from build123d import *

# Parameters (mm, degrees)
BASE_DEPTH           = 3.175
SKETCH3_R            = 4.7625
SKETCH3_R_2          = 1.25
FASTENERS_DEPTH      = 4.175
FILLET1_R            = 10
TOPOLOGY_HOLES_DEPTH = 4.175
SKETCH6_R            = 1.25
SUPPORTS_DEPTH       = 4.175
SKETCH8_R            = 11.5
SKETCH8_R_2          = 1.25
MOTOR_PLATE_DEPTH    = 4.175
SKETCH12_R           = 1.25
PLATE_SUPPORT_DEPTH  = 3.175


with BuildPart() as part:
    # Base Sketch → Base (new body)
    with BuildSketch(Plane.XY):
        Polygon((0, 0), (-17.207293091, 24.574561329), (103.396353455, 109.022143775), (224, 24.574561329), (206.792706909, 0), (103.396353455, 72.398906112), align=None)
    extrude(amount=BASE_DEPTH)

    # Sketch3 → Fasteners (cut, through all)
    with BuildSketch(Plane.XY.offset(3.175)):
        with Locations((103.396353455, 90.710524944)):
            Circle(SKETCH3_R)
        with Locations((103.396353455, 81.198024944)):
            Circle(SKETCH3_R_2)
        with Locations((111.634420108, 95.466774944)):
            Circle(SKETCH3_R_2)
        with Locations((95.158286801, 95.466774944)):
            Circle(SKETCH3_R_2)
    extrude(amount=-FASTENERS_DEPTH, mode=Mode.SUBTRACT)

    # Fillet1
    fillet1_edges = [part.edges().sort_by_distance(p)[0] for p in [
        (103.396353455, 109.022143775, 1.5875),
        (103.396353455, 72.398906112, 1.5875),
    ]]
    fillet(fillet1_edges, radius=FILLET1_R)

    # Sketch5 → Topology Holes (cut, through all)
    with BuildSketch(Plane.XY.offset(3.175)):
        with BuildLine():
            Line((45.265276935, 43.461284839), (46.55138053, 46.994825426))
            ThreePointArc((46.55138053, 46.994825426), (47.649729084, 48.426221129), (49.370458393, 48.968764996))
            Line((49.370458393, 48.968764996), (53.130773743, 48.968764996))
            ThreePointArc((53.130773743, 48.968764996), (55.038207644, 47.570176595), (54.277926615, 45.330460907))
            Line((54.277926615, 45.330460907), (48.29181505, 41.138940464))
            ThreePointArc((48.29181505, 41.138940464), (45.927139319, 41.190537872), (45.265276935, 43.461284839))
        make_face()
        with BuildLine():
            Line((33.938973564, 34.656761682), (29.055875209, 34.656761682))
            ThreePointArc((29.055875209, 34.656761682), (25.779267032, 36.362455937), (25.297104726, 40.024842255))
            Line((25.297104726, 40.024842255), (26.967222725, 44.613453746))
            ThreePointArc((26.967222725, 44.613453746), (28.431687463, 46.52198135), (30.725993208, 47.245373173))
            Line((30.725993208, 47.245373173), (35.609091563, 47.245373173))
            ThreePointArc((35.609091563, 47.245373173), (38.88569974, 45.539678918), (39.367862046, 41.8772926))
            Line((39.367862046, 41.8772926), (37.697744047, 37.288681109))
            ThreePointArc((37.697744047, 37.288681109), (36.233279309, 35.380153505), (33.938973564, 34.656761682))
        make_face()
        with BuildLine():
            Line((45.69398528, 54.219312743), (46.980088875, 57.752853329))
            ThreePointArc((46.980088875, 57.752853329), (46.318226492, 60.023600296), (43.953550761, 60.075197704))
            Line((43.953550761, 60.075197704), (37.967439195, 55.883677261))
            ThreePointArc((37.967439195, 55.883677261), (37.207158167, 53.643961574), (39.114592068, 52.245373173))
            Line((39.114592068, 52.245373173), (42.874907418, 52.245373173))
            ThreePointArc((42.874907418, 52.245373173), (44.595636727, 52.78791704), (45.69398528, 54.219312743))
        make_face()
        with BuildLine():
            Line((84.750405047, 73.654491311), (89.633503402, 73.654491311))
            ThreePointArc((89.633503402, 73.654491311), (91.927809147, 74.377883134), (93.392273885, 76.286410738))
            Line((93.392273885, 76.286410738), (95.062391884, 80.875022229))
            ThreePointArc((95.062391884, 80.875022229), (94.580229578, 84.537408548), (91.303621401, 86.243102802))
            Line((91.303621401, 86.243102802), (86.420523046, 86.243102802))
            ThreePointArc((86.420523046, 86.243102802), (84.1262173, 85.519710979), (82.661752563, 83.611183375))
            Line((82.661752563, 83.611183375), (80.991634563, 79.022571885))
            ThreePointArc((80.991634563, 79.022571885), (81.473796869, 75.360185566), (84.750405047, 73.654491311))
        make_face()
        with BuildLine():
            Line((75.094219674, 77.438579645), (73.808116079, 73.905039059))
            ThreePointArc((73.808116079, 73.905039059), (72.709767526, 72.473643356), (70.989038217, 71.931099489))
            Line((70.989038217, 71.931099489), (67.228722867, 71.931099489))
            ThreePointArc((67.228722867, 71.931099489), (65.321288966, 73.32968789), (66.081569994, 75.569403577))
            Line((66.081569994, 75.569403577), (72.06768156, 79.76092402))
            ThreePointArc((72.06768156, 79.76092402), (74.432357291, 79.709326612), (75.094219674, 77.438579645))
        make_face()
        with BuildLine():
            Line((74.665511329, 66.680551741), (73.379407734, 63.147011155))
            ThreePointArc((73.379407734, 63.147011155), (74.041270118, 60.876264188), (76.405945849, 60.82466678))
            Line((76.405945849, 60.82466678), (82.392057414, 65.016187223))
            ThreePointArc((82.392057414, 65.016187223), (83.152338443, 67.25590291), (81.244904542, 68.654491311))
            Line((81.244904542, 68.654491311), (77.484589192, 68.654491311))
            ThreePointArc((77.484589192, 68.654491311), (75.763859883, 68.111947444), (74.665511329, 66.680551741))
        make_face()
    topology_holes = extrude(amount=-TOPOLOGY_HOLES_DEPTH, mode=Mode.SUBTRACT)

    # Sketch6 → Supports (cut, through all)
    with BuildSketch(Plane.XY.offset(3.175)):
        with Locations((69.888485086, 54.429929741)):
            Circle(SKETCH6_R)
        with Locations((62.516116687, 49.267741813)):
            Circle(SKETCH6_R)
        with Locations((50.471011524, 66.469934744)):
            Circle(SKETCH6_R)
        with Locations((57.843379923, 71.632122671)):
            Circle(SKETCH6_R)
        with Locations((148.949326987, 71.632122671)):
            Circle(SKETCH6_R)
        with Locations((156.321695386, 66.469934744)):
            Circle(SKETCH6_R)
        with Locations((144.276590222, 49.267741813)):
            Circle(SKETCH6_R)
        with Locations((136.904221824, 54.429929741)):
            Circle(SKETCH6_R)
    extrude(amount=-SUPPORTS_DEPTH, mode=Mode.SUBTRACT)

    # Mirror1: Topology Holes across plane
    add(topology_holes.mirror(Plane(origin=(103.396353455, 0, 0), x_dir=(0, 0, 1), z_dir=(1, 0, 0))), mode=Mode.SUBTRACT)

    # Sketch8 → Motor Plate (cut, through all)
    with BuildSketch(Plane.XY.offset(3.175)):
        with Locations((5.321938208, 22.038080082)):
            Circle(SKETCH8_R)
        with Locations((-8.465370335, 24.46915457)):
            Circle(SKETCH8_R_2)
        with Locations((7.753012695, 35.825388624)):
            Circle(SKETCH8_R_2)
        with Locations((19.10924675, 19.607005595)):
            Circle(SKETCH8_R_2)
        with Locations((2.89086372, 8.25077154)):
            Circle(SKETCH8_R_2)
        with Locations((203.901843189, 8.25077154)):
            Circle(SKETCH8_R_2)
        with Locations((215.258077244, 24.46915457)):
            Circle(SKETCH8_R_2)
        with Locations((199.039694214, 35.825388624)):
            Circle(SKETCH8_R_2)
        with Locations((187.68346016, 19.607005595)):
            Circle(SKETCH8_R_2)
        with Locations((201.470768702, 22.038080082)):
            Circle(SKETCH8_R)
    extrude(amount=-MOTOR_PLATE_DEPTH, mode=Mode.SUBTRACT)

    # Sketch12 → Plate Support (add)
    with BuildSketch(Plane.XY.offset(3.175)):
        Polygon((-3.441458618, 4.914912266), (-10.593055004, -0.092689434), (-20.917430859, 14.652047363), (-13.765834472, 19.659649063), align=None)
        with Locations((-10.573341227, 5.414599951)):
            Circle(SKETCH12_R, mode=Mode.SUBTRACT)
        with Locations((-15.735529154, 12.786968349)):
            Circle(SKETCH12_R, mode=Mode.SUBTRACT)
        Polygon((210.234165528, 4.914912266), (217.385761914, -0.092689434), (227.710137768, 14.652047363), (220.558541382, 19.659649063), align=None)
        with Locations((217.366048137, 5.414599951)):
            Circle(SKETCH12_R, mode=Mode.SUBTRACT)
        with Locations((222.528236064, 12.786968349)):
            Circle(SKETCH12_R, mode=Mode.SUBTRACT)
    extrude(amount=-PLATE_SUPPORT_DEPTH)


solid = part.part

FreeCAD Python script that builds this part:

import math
import FreeCAD as App
import Part
import Sketcher
from FreeCAD import Vector
Q = App.Units.Quantity


def edges_at(feature, points):
    """Names of the edges that pass closest to the given points."""
    edges = feature.Shape.Edges
    near = lambda p: min(range(len(edges)), key=lambda i: edges[i].distToShape(Part.Vertex(*p))[0])
    return sorted({f"Edge{near(p) + 1}" for p in points})

doc = App.newDocument("Part")
body = doc.addObject("PartDesign::Body", "Body")

# Sketch on XY plane
sketch1 = body.newObject("Sketcher::SketchObject", "Sketch")
sketch1.AttachmentSupport = (doc.getObject("XY_Plane"), [""])
sketch1.MapMode = "FlatFace"
sketch1.addGeometry(Part.LineSegment(Vector(-17, 25, 0), Vector(0, 0, 0)), False)
sketch1.addGeometry(Part.LineSegment(Vector(0, 0, 0), Vector(103, 72, 0)), False)
sketch1.addGeometry(Part.LineSegment(Vector(103, 72, 0), Vector(207, 0, 0)), False)
sketch1.addGeometry(Part.LineSegment(Vector(207, 0, 0), Vector(224, 25, 0)), False)
sketch1.addGeometry(Part.LineSegment(Vector(224, 25, 0), Vector(103, 109, 0)), False)
sketch1.addGeometry(Part.LineSegment(Vector(103, 109, 0), Vector(-17, 25, 0)), False)
sketch1.addConstraint(Sketcher.Constraint("Coincident", 0, 2, 1, 1))
sketch1.addConstraint(Sketcher.Constraint("Coincident", 1, 2, 2, 1))
sketch1.addConstraint(Sketcher.Constraint("Coincident", 2, 2, 3, 1))
sketch1.addConstraint(Sketcher.Constraint("Coincident", 3, 2, 4, 1))
sketch1.addConstraint(Sketcher.Constraint("Coincident", 4, 2, 5, 1))
sketch1.addConstraint(Sketcher.Constraint("Coincident", 5, 2, 0, 1))
sketch1.addConstraint(Sketcher.Constraint("Coincident", 0, 2, -1, 1))
sketch1.addConstraint(Sketcher.Constraint("PointOnObject", 2, 2, -1))
sketch1.addConstraint(Sketcher.Constraint("Perpendicular", 0, 1))
sketch1.addConstraint(Sketcher.Constraint("Perpendicular", 2, 3))
sketch1.addConstraint(Sketcher.Constraint("Perpendicular", 3, 4))
sketch1.addConstraint(Sketcher.Constraint("Parallel", 1, 5))
sketch1.addConstraint(Sketcher.Constraint("Horizontal", 3, 2, 5, 2))
sketch1.addConstraint(Sketcher.Constraint("Vertical", 1, 2, 4, 2))
sketch1.addConstraint(Sketcher.Constraint("Angle", 0, Q("-55 deg")))
sketch1.addConstraint(Sketcher.Constraint("Distance", 0, 30.0))
sketch1.addConstraint(Sketcher.Constraint("DistanceX", -1, 1, 3, 2, 224.0))
pad1 = body.newObject("PartDesign::Pad", "Pad")
pad1.Profile = sketch1
pad1.Length = 3.175

# Sketch on XY plane
sketch2 = body.newObject("Sketcher::SketchObject", "Sketch001")
sketch2.AttachmentSupport = (doc.getObject("XY_Plane"), [""])
sketch2.MapMode = "FlatFace"
sketch2.AttachmentOffset = App.Placement(Vector(0, 0, 3.175), App.Rotation())
sketch2.addGeometry(Part.Circle(Vector(103.4, 90.7, 0), Vector(0, 0, 1), 4.8), False)
sketch2.addGeometry(Part.Circle(Vector(103.4, 81.2, 0), Vector(0, 0, 1), 1.2), False)
sketch2.addGeometry(Part.Circle(Vector(111.6, 95.5, 0), Vector(0, 0, 1), 1.2), False)
sketch2.addGeometry(Part.Circle(Vector(95.2, 95.5, 0), Vector(0, 0, 1), 1.2), False)
sketch2.addConstraint(Sketcher.Constraint("Equal", 1, 2))
sketch2.addConstraint(Sketcher.Constraint("Equal", 2, 3))
sketch2.addConstraint(Sketcher.Constraint("Horizontal", 2, 3, 3, 3))
sketch2.addConstraint(Sketcher.Constraint("Vertical", 0, 3, 1, 3))
sketch2.addConstraint(Sketcher.Constraint("Diameter", 1, 2.5))
sketch2.addConstraint(Sketcher.Constraint("Diameter", 0, 9.525))
sketch2.addConstraint(Sketcher.Constraint("DistanceY", 1, 3, 0, 3, 9.5125))
sketch2.addConstraint(Sketcher.Constraint("DistanceX", -1, 1, 2, 3, 111.63442))
sketch2.addConstraint(Sketcher.Constraint("DistanceY", 0, 3, 2, 3, 4.75625))
sketch2.addConstraint(Sketcher.Constraint("DistanceX", -1, 1, 0, 3, 103.396353))
sketch2.addConstraint(Sketcher.Constraint("DistanceY", -1, 1, 0, 3, 90.710525))
sketch2.addConstraint(Sketcher.Constraint("DistanceX", -1, 1, 3, 3, 95.158287))
pocket1 = body.newObject("PartDesign::Pocket", "Pocket")
pocket1.Profile = sketch2
pocket1.Type = "ThroughAll"
doc.recompute()

fillet = body.newObject("PartDesign::Fillet", "Fillet")
fillet.Base = (pocket1, edges_at(pocket1, [(103.396, 109.022, 1.587), (103.396, 72.399, 1.587)]))
fillet.Radius = 10

# Sketch on XY plane
sketch3 = body.newObject("Sketcher::SketchObject", "Sketch002")
sketch3.AttachmentSupport = (doc.getObject("XY_Plane"), [""])
sketch3.MapMode = "FlatFace"
sketch3.AttachmentOffset = App.Placement(Vector(0, 0, 3.175), App.Rotation())
sketch3.addGeometry(Part.LineSegment(Vector(46.6, 47, 0), Vector(45.3, 43.5, 0)), False)
sketch3.addGeometry(Part.ArcOfCircle(Part.Circle(Vector(47.1, 42.8, 0), Vector(0, 0, 1), 2), math.radians(160), math.radians(305)), False)
sketch3.addGeometry(Part.LineSegment(Vector(48.3, 41.1, 0), Vector(54.3, 45.3, 0)), False)
sketch3.addGeometry(Part.ArcOfCircle(Part.Circle(Vector(53.1, 47, 0), Vector(0, 0, 1), 2), math.radians(-55), math.radians(90)), False)
sketch3.addGeometry(Part.LineSegment(Vector(53.1, 49, 0), Vector(49.4, 49, 0)), False)
sketch3.addGeometry(Part.ArcOfCircle(Part.Circle(Vector(49.4, 46, 0), Vector(0, 0, 1), 3), math.radians(90), math.radians(160)), False)
sketch3.addGeometry(Part.LineSegment(Vector(29.1, 34.7, 0), Vector(33.9, 34.7, 0)), False)
sketch3.addGeometry(Part.ArcOfCircle(Part.Circle(Vector(33.9, 38.7, 0), Vector(0, 0, 1), 4), math.radians(-90), math.radians(-20)), False)
sketch3.addGeometry(Part.LineSegment(Vector(37.7, 37.3, 0), Vector(39.4, 41.9, 0)), False)
sketch3.addGeometry(Part.ArcOfCircle(Part.Circle(Vector(35.6, 43.2, 0), Vector(0, 0, 1), 4), math.radians(-20), math.radians(90)), False)
sketch3.addGeometry(Part.LineSegment(Vector(35.6, 47.2, 0), Vector(30.7, 47.2, 0)), False)
sketch3.addGeometry(Part.ArcOfCircle(Part.Circle(Vector(30.7, 43.2, 0), Vector(0, 0, 1), 4), math.radians(90), math.radians(160)), False)
sketch3.addGeometry(Part.LineSegment(Vector(27, 44.6, 0), Vector(25.3, 40, 0)), False)
sketch3.addGeometry(Part.ArcOfCircle(Part.Circle(Vector(29.1, 38.7, 0), Vector(0, 0, 1), 4), math.radians(160), math.radians(270)), False)
sketch3.addGeometry(Part.LineSegment(Vector(45.7, 54.2, 0), Vector(47, 57.8, 0)), False)
sketch3.addGeometry(Part.ArcOfCircle(Part.Circle(Vector(45.1, 58.4, 0), Vector(0, 0, 1), 2), math.radians(-20), math.radians(125)), False)
sketch3.addGeometry(Part.LineSegment(Vector(44, 60.1, 0), Vector(38, 55.9, 0)), False)
sketch3.addGeometry(Part.ArcOfCircle(Part.Circle(Vector(39.1, 54.2, 0), Vector(0, 0, 1), 2), math.radians(125), math.radians(270)), False)
sketch3.addGeometry(Part.LineSegment(Vector(39.1, 52.2, 0), Vector(42.9, 52.2, 0)), False)
sketch3.addGeometry(Part.ArcOfCircle(Part.Circle(Vector(42.9, 55.2, 0), Vector(0, 0, 1), 3), math.radians(-90), math.radians(-20)), False)
sketch3.addGeometry(Part.LineSegment(Vector(84.8, 73.7, 0), Vector(89.6, 73.7, 0)), False)
sketch3.addGeometry(Part.ArcOfCircle(Part.Circle(Vector(89.6, 77.7, 0), Vector(0, 0, 1), 4), math.radians(-90), math.radians(-20)), False)
sketch3.addGeometry(Part.LineSegment(Vector(93.4, 76.3, 0), Vector(95.1, 80.9, 0)), False)
sketch3.addGeometry(Part.ArcOfCircle(Part.Circle(Vector(91.3, 82.2, 0), Vector(0, 0, 1), 4), math.radians(-20), math.radians(90)), False)
sketch3.addGeometry(Part.LineSegment(Vector(91.3, 86.2, 0), Vector(86.4, 86.2, 0)), False)
sketch3.addGeometry(Part.ArcOfCircle(Part.Circle(Vector(86.4, 82.2, 0), Vector(0, 0, 1), 4), math.radians(90), math.radians(160)), False)
sketch3.addGeometry(Part.LineSegment(Vector(82.7, 83.6, 0), Vector(81, 79, 0)), False)
sketch3.addGeometry(Part.ArcOfCircle(Part.Circle(Vector(84.8, 77.7, 0), Vector(0, 0, 1), 4), math.radians(160), math.radians(270)), False)
sketch3.addGeometry(Part.LineSegment(Vector(73.8, 73.9, 0), Vector(75.1, 77.4, 0)), False)
sketch3.addGeometry(Part.ArcOfCircle(Part.Circle(Vector(73.2, 78.1, 0), Vector(0, 0, 1), 2), math.radians(-20), math.radians(125)), False)
sketch3.addGeometry(Part.LineSegment(Vector(72.1, 79.8, 0), Vector(66.1, 75.6, 0)), False)
sketch3.addGeometry(Part.ArcOfCircle(Part.Circle(Vector(67.2, 73.9, 0), Vector(0, 0, 1), 2), math.radians(125), math.radians(270)), False)
sketch3.addGeometry(Part.LineSegment(Vector(67.2, 71.9, 0), Vector(71, 71.9, 0)), False)
sketch3.addGeometry(Part.ArcOfCircle(Part.Circle(Vector(71, 74.9, 0), Vector(0, 0, 1), 3), math.radians(-90), math.radians(-20)), False)
sketch3.addGeometry(Part.LineSegment(Vector(74.7, 66.7, 0), Vector(73.4, 63.1, 0)), False)
sketch3.addGeometry(Part.ArcOfCircle(Part.Circle(Vector(75.3, 62.5, 0), Vector(0, 0, 1), 2), math.radians(160), math.radians(305)), False)
sketch3.addGeometry(Part.LineSegment(Vector(76.4, 60.8, 0), Vector(82.4, 65, 0)), False)
sketch3.addGeometry(Part.ArcOfCircle(Part.Circle(Vector(81.2, 66.7, 0), Vector(0, 0, 1), 2), math.radians(-55), math.radians(90)), False)
sketch3.addGeometry(Part.LineSegment(Vector(81.2, 68.7, 0), Vector(77.5, 68.7, 0)), False)
sketch3.addGeometry(Part.ArcOfCircle(Part.Circle(Vector(77.5, 65.7, 0), Vector(0, 0, 1), 3), math.radians(90), math.radians(160)), False)
sketch3.addConstraint(Sketcher.Constraint("Tangent", 0, 2, 1, 1))
sketch3.addConstraint(Sketcher.Constraint("Tangent", 1, 2, 2, 1))
sketch3.addConstraint(Sketcher.Constraint("Tangent", 2, 2, 3, 1))
sketch3.addConstraint(Sketcher.Constraint("Tangent", 3, 2, 4, 1))
sketch3.addConstraint(Sketcher.Constraint("Tangent", 4, 2, 5, 1))
sketch3.addConstraint(Sketcher.Constraint("Tangent", 5, 2, 0, 1))
sketch3.addConstraint(Sketcher.Constraint("Tangent", 6, 2, 7, 1))
sketch3.addConstraint(Sketcher.Constraint("Tangent", 7, 2, 8, 1))
sketch3.addConstraint(Sketcher.Constraint("Tangent", 8, 2, 9, 1))
sketch3.addConstraint(Sketcher.Constraint("Tangent", 9, 2, 10, 1))
sketch3.addConstraint(Sketcher.Constraint("Tangent", 10, 2, 11, 1))
sketch3.addConstraint(Sketcher.Constraint("Tangent", 11, 2, 12, 1))
sketch3.addConstraint(Sketcher.Constraint("Tangent", 12, 2, 13, 1))
sketch3.addConstraint(Sketcher.Constraint("Tangent", 13, 2, 6, 1))
sketch3.addConstraint(Sketcher.Constraint("Tangent", 14, 2, 15, 1))
sketch3.addConstraint(Sketcher.Constraint("Tangent", 15, 2, 16, 1))
sketch3.addConstraint(Sketcher.Constraint("Tangent", 16, 2, 17, 1))
sketch3.addConstraint(Sketcher.Constraint("Tangent", 17, 2, 18, 1))
sketch3.addConstraint(Sketcher.Constraint("Tangent", 18, 2, 19, 1))
sketch3.addConstraint(Sketcher.Constraint("Tangent", 19, 2, 14, 1))
sketch3.addConstraint(Sketcher.Constraint("Tangent", 20, 2, 21, 1))
sketch3.addConstraint(Sketcher.Constraint("Tangent", 21, 2, 22, 1))
sketch3.addConstraint(Sketcher.Constraint("Tangent", 22, 2, 23, 1))
sketch3.addConstraint(Sketcher.Constraint("Tangent", 23, 2, 24, 1))
sketch3.addConstraint(Sketcher.Constraint("Tangent", 24, 2, 25, 1))
sketch3.addConstraint(Sketcher.Constraint("Tangent", 25, 2, 26, 1))
sketch3.addConstraint(Sketcher.Constraint("Tangent", 26, 2, 27, 1))
sketch3.addConstraint(Sketcher.Constraint("Tangent", 27, 2, 20, 1))
sketch3.addConstraint(Sketcher.Constraint("Tangent", 28, 2, 29, 1))
sketch3.addConstraint(Sketcher.Constraint("Tangent", 29, 2, 30, 1))
sketch3.addConstraint(Sketcher.Constraint("Tangent", 30, 2, 31, 1))
sketch3.addConstraint(Sketcher.Constraint("Tangent", 31, 2, 32, 1))
sketch3.addConstraint(Sketcher.Constraint("Tangent", 32, 2, 33, 1))
sketch3.addConstraint(Sketcher.Constraint("Tangent", 33, 2, 28, 1))
sketch3.addConstraint(Sketcher.Constraint("Tangent", 34, 2, 35, 1))
sketch3.addConstraint(Sketcher.Constraint("Tangent", 35, 2, 36, 1))
sketch3.addConstraint(Sketcher.Constraint("Tangent", 36, 2, 37, 1))
sketch3.addConstraint(Sketcher.Constraint("Tangent", 37, 2, 38, 1))
sketch3.addConstraint(Sketcher.Constraint("Tangent", 38, 2, 39, 1))
sketch3.addConstraint(Sketcher.Constraint("Tangent", 39, 2, 34, 1))
sketch3.addConstraint(Sketcher.Constraint("Horizontal", 4))
sketch3.addConstraint(Sketcher.Constraint("Horizontal", 6))
sketch3.addConstraint(Sketcher.Constraint("Horizontal", 10))
sketch3.addConstraint(Sketcher.Constraint("Horizontal", 18))
sketch3.addConstraint(Sketcher.Constraint("Horizontal", 20))
sketch3.addConstraint(Sketcher.Constraint("Horizontal", 24))
sketch3.addConstraint(Sketcher.Constraint("Horizontal", 32))
sketch3.addConstraint(Sketcher.Constraint("Horizontal", 38))
sketch3.addConstraint(Sketcher.Constraint("Equal", 1, 3))
sketch3.addConstraint(Sketcher.Constraint("Equal", 7, 9))
sketch3.addConstraint(Sketcher.Constraint("Equal", 9, 11))
sketch3.addConstraint(Sketcher.Constraint("Equal", 11, 13))
sketch3.addConstraint(Sketcher.Constraint("Equal", 3, 15))
sketch3.addConstraint(Sketcher.Constraint("Equal", 15, 17))
sketch3.addConstraint(Sketcher.Constraint("Equal", 5, 19))
sketch3.addConstraint(Sketcher.Constraint("Equal", 13, 21))
sketch3.addConstraint(Sketcher.Constraint("Equal", 21, 23))
sketch3.addConstraint(Sketcher.Constraint("Equal", 23, 25))
sketch3.addConstraint(Sketcher.Constraint("Equal", 25, 27))
sketch3.addConstraint(Sketcher.Constraint("Equal", 17, 29))
sketch3.addConstraint(Sketcher.Constraint("Equal", 29, 31))
sketch3.addConstraint(Sketcher.Constraint("Equal", 19, 33))
sketch3.addConstraint(Sketcher.Constraint("Equal", 31, 35))
sketch3.addConstraint(Sketcher.Constraint("Equal", 35, 37))
sketch3.addConstraint(Sketcher.Constraint("Equal", 33, 39))
sketch3.addConstraint(Sketcher.Constraint("Parallel", 0, 8))
sketch3.addConstraint(Sketcher.Constraint("Parallel", 8, 12))
sketch3.addConstraint(Sketcher.Constraint("Parallel", 12, 14))
sketch3.addConstraint(Sketcher.Constraint("Parallel", 2, 16))
sketch3.addConstraint(Sketcher.Constraint("Parallel", 14, 22))
sketch3.addConstraint(Sketcher.Constraint("Parallel", 22, 26))
sketch3.addConstraint(Sketcher.Constraint("Parallel", 26, 28))
sketch3.addConstraint(Sketcher.Constraint("Parallel", 16, 30))
sketch3.addConstraint(Sketcher.Constraint("Parallel", 28, 34))
sketch3.addConstraint(Sketcher.Constraint("Parallel", 30, 36))
sketch3.addConstraint(Sketcher.Constraint("Equal", 4, 18))
sketch3.addConstraint(Sketcher.Constraint("Equal", 10, 20))
sketch3.addConstraint(Sketcher.Constraint("Equal", 18, 32))
sketch3.addConstraint(Sketcher.Constraint("Equal", 32, 38))
sketch3.addConstraint(Sketcher.Constraint("Equal", 12, 22))
sketch3.addConstraint(Sketcher.Constraint("Radius", 1, 2.0))
sketch3.addConstraint(Sketcher.Constraint("Radius", 5, 3.0))
sketch3.addConstraint(Sketcher.Constraint("Radius", 7, 4.0))
sketch3.addConstraint(Sketcher.Constraint("Angle", 0, Q("-110 deg")))
sketch3.addConstraint(Sketcher.Constraint("Angle", 2, Q("35 deg")))
sketch3.addConstraint(Sketcher.Constraint("DistanceY", 9, 3, 17, 3, 11.0))
sketch3.addConstraint(Sketcher.Constraint("DistanceY", 37, 3, 27, 3, 11.0))
sketch3.addConstraint(Sketcher.Constraint("DistanceX", 6, 1, 6, 2, 4.883098))
sketch3.addConstraint(Sketcher.Constraint("Distance", 8, 4.883098))
sketch3.addConstraint(Sketcher.Constraint("DistanceY", -1, 1, 31, 3, 73.931099))
sketch3.addConstraint(Sketcher.Constraint("DistanceX", 7, 3, 3, 3, 19.1918))
sketch3.addConstraint(Sketcher.Constraint("DistanceX", 9, 3, 17, 3, 3.505501))
sketch3.addConstraint(Sketcher.Constraint("DistanceX", 15, 3, 21, 3, 44.5328))
sketch3.addConstraint(Sketcher.Constraint("DistanceX", 31, 3, 25, 3, 19.1918))
sketch3.addConstraint(Sketcher.Constraint("DistanceX", 37, 3, 27, 3, 3.505501))
sketch3.addConstraint(Sketcher.Constraint("DistanceX", 8, 2, 1, 3, 7.7768))
sketch3.addConstraint(Sketcher.Constraint("DistanceX", -1, 1, 5, 3, 49.370458))
sketch3.addConstraint(Sketcher.Constraint("DistanceY", -1, 1, 7, 3, 38.656762))
sketch3.addConstraint(Sketcher.Constraint("DistanceY", -1, 1, 21, 3, 77.654491))
sketch3.addConstraint(Sketcher.Constraint("DistanceY", -1, 1, 1, 2, 41.13894))
pocket2 = body.newObject("PartDesign::Pocket", "Pocket001")
pocket2.Profile = sketch3
pocket2.Type = "ThroughAll"

# Sketch on XY plane
sketch4 = body.newObject("Sketcher::SketchObject", "Sketch003")
sketch4.AttachmentSupport = (doc.getObject("XY_Plane"), [""])
sketch4.MapMode = "FlatFace"
sketch4.AttachmentOffset = App.Placement(Vector(0, 0, 3.175), App.Rotation())
sketch4.addGeometry(Part.Circle(Vector(69.9, 54.4, 0), Vector(0, 0, 1), 1.2), False)
sketch4.addGeometry(Part.Circle(Vector(62.5, 49.3, 0), Vector(0, 0, 1), 1.2), False)
sketch4.addGeometry(Part.Circle(Vector(50.5, 66.5, 0), Vector(0, 0, 1), 1.2), False)
sketch4.addGeometry(Part.Circle(Vector(57.8, 71.6, 0), Vector(0, 0, 1), 1.2), False)
sketch4.addGeometry(Part.Circle(Vector(148.9, 71.6, 0), Vector(0, 0, 1), 1.2), False)
sketch4.addGeometry(Part.Circle(Vector(156.3, 66.5, 0), Vector(0, 0, 1), 1.2), False)
sketch4.addGeometry(Part.Circle(Vector(144.3, 49.3, 0), Vector(0, 0, 1), 1.2), False)
sketch4.addGeometry(Part.Circle(Vector(136.9, 54.4, 0), Vector(0, 0, 1), 1.2), False)
sketch4.addConstraint(Sketcher.Constraint("Equal", 0, 1))
sketch4.addConstraint(Sketcher.Constraint("Equal", 1, 2))
sketch4.addConstraint(Sketcher.Constraint("Equal", 2, 3))
sketch4.addConstraint(Sketcher.Constraint("Equal", 3, 4))
sketch4.addConstraint(Sketcher.Constraint("Equal", 4, 5))
sketch4.addConstraint(Sketcher.Constraint("Equal", 5, 6))
sketch4.addConstraint(Sketcher.Constraint("Equal", 6, 7))
sketch4.addConstraint(Sketcher.Constraint("Horizontal", 3, 3, 4, 3))
sketch4.addConstraint(Sketcher.Constraint("Horizontal", 2, 3, 5, 3))
sketch4.addConstraint(Sketcher.Constraint("Horizontal", 1, 3, 6, 3))
sketch4.addConstraint(Sketcher.Constraint("Horizontal", 0, 3, 7, 3))
sketch4.addConstraint(Sketcher.Constraint("Diameter", 0, 2.5))
sketch4.addConstraint(Sketcher.Constraint("DistanceY", -1, 1, 0, 3, 54.42993))
sketch4.addConstraint(Sketcher.Constraint("DistanceY", -1, 1, 1, 3, 49.267742))
sketch4.addConstraint(Sketcher.Constraint("DistanceX", -1, 1, 2, 3, 50.471012))
sketch4.addConstraint(Sketcher.Constraint("DistanceX", -1, 1, 3, 3, 57.84338))
sketch4.addConstraint(Sketcher.Constraint("DistanceX", -1, 1, 6, 3, 144.27659))
sketch4.addConstraint(Sketcher.Constraint("DistanceX", -1, 1, 7, 3, 136.904222))
sketch4.addConstraint(Sketcher.Constraint("DistanceX", 1, 3, 0, 3, 7.372368))
sketch4.addConstraint(Sketcher.Constraint("DistanceY", 1, 3, 3, 3, 22.364381))
sketch4.addConstraint(Sketcher.Constraint("DistanceX", 0, 3, 4, 3, 79.060842))
sketch4.addConstraint(Sketcher.Constraint("DistanceX", 4, 3, 5, 3, 7.372368))
sketch4.addConstraint(Sketcher.Constraint("DistanceX", -1, 1, 0, 3, 69.888485))
sketch4.addConstraint(Sketcher.Constraint("DistanceY", -1, 1, 2, 3, 66.469935))
pocket3 = body.newObject("PartDesign::Pocket", "Pocket002")
pocket3.Profile = sketch4
pocket3.Type = "ThroughAll"
doc.recompute()

datumplane = body.newObject("PartDesign::Plane", "DatumPlane")
datumplane.AttachmentSupport = (doc.getObject("YZ_Plane"), [""])
datumplane.MapMode = "FlatFace"
datumplane.AttachmentOffset = App.Placement(Vector(0, 0, 103.396353), App.Rotation())
mirrored = body.newObject("PartDesign::Mirrored", "Mirrored")
mirrored.Originals = [pocket2]
mirrored.MirrorPlane = (datumplane, [""])
body.Tip = mirrored

# Sketch on XY plane
sketch5 = body.newObject("Sketcher::SketchObject", "Sketch004")
sketch5.AttachmentSupport = (doc.getObject("XY_Plane"), [""])
sketch5.MapMode = "FlatFace"
sketch5.AttachmentOffset = App.Placement(Vector(0, 0, 3.175), App.Rotation())
sketch5.addGeometry(Part.Circle(Vector(5.3, 22, 0), Vector(0, 0, 1), 11.5), False)
sketch5.addGeometry(Part.Circle(Vector(-8.5, 24.5, 0), Vector(0, 0, 1), 1.2), False)
sketch5.addGeometry(Part.Circle(Vector(7.8, 35.8, 0), Vector(0, 0, 1), 1.2), False)
sketch5.addGeometry(Part.Circle(Vector(19.1, 19.6, 0), Vector(0, 0, 1), 1.2), False)
sketch5.addGeometry(Part.Circle(Vector(2.9, 8.3, 0), Vector(0, 0, 1), 1.2), False)
sketch5.addGeometry(Part.Circle(Vector(203.9, 8.3, 0), Vector(0, 0, 1), 1.2), False)
sketch5.addGeometry(Part.Circle(Vector(215.3, 24.5, 0), Vector(0, 0, 1), 1.2), False)
sketch5.addGeometry(Part.Circle(Vector(199, 35.8, 0), Vector(0, 0, 1), 1.2), False)
sketch5.addGeometry(Part.Circle(Vector(187.7, 19.6, 0), Vector(0, 0, 1), 1.2), False)
sketch5.addGeometry(Part.Circle(Vector(201.5, 22, 0), Vector(0, 0, 1), 11.5), False)
sketch5.addConstraint(Sketcher.Constraint("Equal", 1, 2))
sketch5.addConstraint(Sketcher.Constraint("Equal", 2, 3))
sketch5.addConstraint(Sketcher.Constraint("Equal", 3, 4))
sketch5.addConstraint(Sketcher.Constraint("Equal", 4, 5))
sketch5.addConstraint(Sketcher.Constraint("Equal", 5, 6))
sketch5.addConstraint(Sketcher.Constraint("Equal", 6, 7))
sketch5.addConstraint(Sketcher.Constraint("Equal", 7, 8))
sketch5.addConstraint(Sketcher.Constraint("Equal", 0, 9))
sketch5.addConstraint(Sketcher.Constraint("Horizontal", 4, 3, 5, 3))
sketch5.addConstraint(Sketcher.Constraint("Horizontal", 1, 3, 6, 3))
sketch5.addConstraint(Sketcher.Constraint("Horizontal", 2, 3, 7, 3))
sketch5.addConstraint(Sketcher.Constraint("Horizontal", 3, 3, 8, 3))
sketch5.addConstraint(Sketcher.Constraint("Horizontal", 0, 3, 9, 3))
sketch5.addConstraint(Sketcher.Constraint("Diameter", 0, 23.0))
sketch5.addConstraint(Sketcher.Constraint("Diameter", 1, 2.5))
sketch5.addConstraint(Sketcher.Constraint("DistanceX", -1, 1, 0, 3, 5.321938))
sketch5.addConstraint(Sketcher.Constraint("DistanceY", -1, 1, 0, 3, 22.03808))
sketch5.addConstraint(Sketcher.Constraint("DistanceX", 1, 3, -1, 1, 8.46537))
sketch5.addConstraint(Sketcher.Constraint("DistanceY", -1, 1, 2, 3, 35.825389))
sketch5.addConstraint(Sketcher.Constraint("DistanceY", -1, 1, 4, 3, 8.250772))
sketch5.addConstraint(Sketcher.Constraint("DistanceX", -1, 1, 8, 3, 187.68346))
sketch5.addConstraint(Sketcher.Constraint("DistanceX", -1, 1, 9, 3, 201.470769))
sketch5.addConstraint(Sketcher.Constraint("DistanceX", 0, 3, 3, 3, 13.787309))
sketch5.addConstraint(Sketcher.Constraint("DistanceY", 3, 3, 1, 3, 4.862149))
sketch5.addConstraint(Sketcher.Constraint("DistanceX", 4, 3, 2, 3, 4.862149))
sketch5.addConstraint(Sketcher.Constraint("DistanceX", 2, 3, 5, 3, 196.14883))
sketch5.addConstraint(Sketcher.Constraint("DistanceX", 3, 3, 6, 3, 196.14883))
sketch5.addConstraint(Sketcher.Constraint("DistanceX", 7, 3, 5, 3, 4.862149))
sketch5.addConstraint(Sketcher.Constraint("DistanceY", -1, 1, 1, 3, 24.469155))
sketch5.addConstraint(Sketcher.Constraint("DistanceX", -1, 1, 2, 3, 7.753013))
pocket4 = body.newObject("PartDesign::Pocket", "Pocket003")
pocket4.Profile = sketch5
pocket4.Type = "ThroughAll"

# Sketch on XY plane
sketch6 = body.newObject("Sketcher::SketchObject", "Sketch005")
sketch6.AttachmentSupport = (doc.getObject("XY_Plane"), [""])
sketch6.MapMode = "FlatFace"
sketch6.AttachmentOffset = App.Placement(Vector(0, 0, 3.175), App.Rotation())
sketch6.addGeometry(Part.LineSegment(Vector(-10.6, -0.1, 0), Vector(-3.4, 4.9, 0)), False)
sketch6.addGeometry(Part.LineSegment(Vector(-3.4, 4.9, 0), Vector(-13.8, 19.7, 0)), False)
sketch6.addGeometry(Part.LineSegment(Vector(-13.8, 19.7, 0), Vector(-20.9, 14.7, 0)), False)
sketch6.addGeometry(Part.LineSegment(Vector(-20.9, 14.7, 0), Vector(-10.6, -0.1, 0)), False)
sketch6.addGeometry(Part.Circle(Vector(-10.6, 5.4, 0), Vector(0, 0, 1), 1.2), False)
sketch6.addGeometry(Part.Circle(Vector(-15.7, 12.8, 0), Vector(0, 0, 1), 1.2), False)
sketch6.addGeometry(Part.LineSegment(Vector(210.2, 4.9, 0), Vector(217.4, -0.1, 0)), False)
sketch6.addGeometry(Part.LineSegment(Vector(217.4, -0.1, 0), Vector(227.7, 14.7, 0)), False)
sketch6.addGeometry(Part.LineSegment(Vector(227.7, 14.7, 0), Vector(220.6, 19.7, 0)), False)
sketch6.addGeometry(Part.LineSegment(Vector(220.6, 19.7, 0), Vector(210.2, 4.9, 0)), False)
sketch6.addGeometry(Part.Circle(Vector(217.4, 5.4, 0), Vector(0, 0, 1), 1.2), False)
sketch6.addGeometry(Part.Circle(Vector(222.5, 12.8, 0), Vector(0, 0, 1), 1.2), False)
sketch6.addConstraint(Sketcher.Constraint("Coincident", 0, 2, 1, 1))
sketch6.addConstraint(Sketcher.Constraint("Coincident", 1, 2, 2, 1))
sketch6.addConstraint(Sketcher.Constraint("Coincident", 2, 2, 3, 1))
sketch6.addConstraint(Sketcher.Constraint("Coincident", 3, 2, 0, 1))
sketch6.addConstraint(Sketcher.Constraint("Coincident", 6, 2, 7, 1))
sketch6.addConstraint(Sketcher.Constraint("Coincident", 7, 2, 8, 1))
sketch6.addConstraint(Sketcher.Constraint("Coincident", 8, 2, 9, 1))
sketch6.addConstraint(Sketcher.Constraint("Coincident", 9, 2, 6, 1))
sketch6.addConstraint(Sketcher.Constraint("Equal", 4, 5))
sketch6.addConstraint(Sketcher.Constraint("Equal", 5, 10))
sketch6.addConstraint(Sketcher.Constraint("Equal", 10, 11))
sketch6.addConstraint(Sketcher.Constraint("Perpendicular", 0, 1))
sketch6.addConstraint(Sketcher.Constraint("Perpendicular", 1, 2))
sketch6.addConstraint(Sketcher.Constraint("Perpendicular", 2, 3))
sketch6.addConstraint(Sketcher.Constraint("Perpendicular", 6, 7))
sketch6.addConstraint(Sketcher.Constraint("Perpendicular", 7, 8))
sketch6.addConstraint(Sketcher.Constraint("Perpendicular", 8, 9))
sketch6.addConstraint(Sketcher.Constraint("Horizontal", 4, 3, 10, 3))
sketch6.addConstraint(Sketcher.Constraint("Horizontal", 5, 3, 11, 3))
sketch6.addConstraint(Sketcher.Constraint("Horizontal", 3, 2, 6, 2))
sketch6.addConstraint(Sketcher.Constraint("Horizontal", 2, 2, 7, 2))
sketch6.addConstraint(Sketcher.Constraint("Horizontal", 1, 2, 8, 2))
sketch6.addConstraint(Sketcher.Constraint("Equal", 2, 6))
sketch6.addConstraint(Sketcher.Constraint("Diameter", 4, 2.5))
sketch6.addConstraint(Sketcher.Constraint("Angle", 0, Q("35 deg")))
sketch6.addConstraint(Sketcher.Constraint("Distance", 1, 18.0))
sketch6.addConstraint(Sketcher.Constraint("DistanceX", 0, 2, 8, 2, 224.0))
sketch6.addConstraint(Sketcher.Constraint("DistanceY", -1, 1, 4, 3, 5.4146))
sketch6.addConstraint(Sketcher.Constraint("DistanceX", 2, 2, 5, 3, 5.181902))
sketch6.addConstraint(Sketcher.Constraint("DistanceY", 2, 2, 1, 2, 5.007602))
sketch6.addConstraint(Sketcher.Constraint("DistanceX", 11, 3, 7, 2, 5.181902))
sketch6.addConstraint(Sketcher.Constraint("DistanceX", 4, 3, -1, 1, 10.573341))
sketch6.addConstraint(Sketcher.Constraint("DistanceX", 5, 3, -1, 1, 15.735529))
sketch6.addConstraint(Sketcher.Constraint("DistanceY", -1, 1, 5, 3, 12.786968))
sketch6.addConstraint(Sketcher.Constraint("DistanceX", -1, 1, 10, 3, 217.366048))
sketch6.addConstraint(Sketcher.Constraint("DistanceY", -1, 1, 1, 2, 19.659649))
pad2 = body.newObject("PartDesign::Pad", "Pad001")
pad2.Profile = sketch6
pad2.Length = 3.175
pad2.Reversed = True

doc.recompute()
